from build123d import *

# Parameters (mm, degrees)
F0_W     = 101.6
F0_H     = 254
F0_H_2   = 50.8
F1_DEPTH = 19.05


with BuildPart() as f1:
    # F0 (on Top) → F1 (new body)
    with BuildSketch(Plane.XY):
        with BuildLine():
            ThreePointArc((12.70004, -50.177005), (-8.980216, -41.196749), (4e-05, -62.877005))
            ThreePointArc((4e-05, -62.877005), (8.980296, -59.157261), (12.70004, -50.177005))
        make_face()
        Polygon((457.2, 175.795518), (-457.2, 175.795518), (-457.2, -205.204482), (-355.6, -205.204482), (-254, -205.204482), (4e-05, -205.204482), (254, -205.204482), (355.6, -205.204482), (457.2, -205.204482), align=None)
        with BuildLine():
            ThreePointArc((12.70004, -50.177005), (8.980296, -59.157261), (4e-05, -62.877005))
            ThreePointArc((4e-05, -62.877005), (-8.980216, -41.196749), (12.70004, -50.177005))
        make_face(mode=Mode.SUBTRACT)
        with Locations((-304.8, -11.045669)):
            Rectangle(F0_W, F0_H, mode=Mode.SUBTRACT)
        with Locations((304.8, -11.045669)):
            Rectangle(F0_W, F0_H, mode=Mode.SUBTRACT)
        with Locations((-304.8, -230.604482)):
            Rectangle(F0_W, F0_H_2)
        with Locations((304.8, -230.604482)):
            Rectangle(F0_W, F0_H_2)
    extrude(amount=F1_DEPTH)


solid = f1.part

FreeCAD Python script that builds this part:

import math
import FreeCAD as App
import Part
import Sketcher
Q = App.Units.Quantity

doc = App.newDocument("Part")
params = doc.addObject("Spreadsheet::Sheet", "Params")
for row, (alias, value) in enumerate([
    ("sketch1_radius", "0.5 in"),
    ("sketch1_width", "36 in"),
    ("sketch1_width2", "4 in"),
    ("sketch1_height", "15 in"),
    ("sketch1_height2", "2 in"),
    ("pad1_length", "0.75 in"),
], start=1):
    params.set(f"A{row}", alias)
    params.set(f"B{row}", "=" + value)
    params.setAlias(f"B{row}", alias)

body = doc.addObject("PartDesign::Body", "Body")

# Sketch on XY plane
sketch1 = body.newObject("Sketcher::SketchObject", "Sketch")
sketch1.AttachmentSupport = (doc.getObject("XY_Plane"), [""])
sketch1.MapMode = "FlatFace"
sketch1.addGeometry([
    Part.LineSegment(App.Vector(457, 176, 0), App.Vector(-457, 176, 0)),  # 0
    Part.LineSegment(App.Vector(-457, 176, 0), App.Vector(-457, -205, 0)),  # 1
    Part.LineSegment(App.Vector(-457, -205, 0), App.Vector(-356, -205, 0)),  # 2
    Part.LineSegment(App.Vector(-356, -205, 0), App.Vector(-356, -256, 0)),  # 3
    Part.LineSegment(App.Vector(-356, -256, 0), App.Vector(-254, -256, 0)),  # 4
    Part.LineSegment(App.Vector(-254, -256, 0), App.Vector(-254, -205, 0)),  # 5
    Part.LineSegment(App.Vector(-254, -205, 0), App.Vector(254, -205, 0)),  # 6
    Part.LineSegment(App.Vector(254, -205, 0), App.Vector(254, -256, 0)),  # 7
    Part.LineSegment(App.Vector(254, -256, 0), App.Vector(356, -256, 0)),  # 8
    Part.LineSegment(App.Vector(356, -256, 0), App.Vector(356, -205, 0)),  # 9
    Part.LineSegment(App.Vector(356, -205, 0), App.Vector(457, -205, 0)),  # 10
    Part.LineSegment(App.Vector(457, -205, 0), App.Vector(457, 176, 0)),  # 11
    Part.ArcOfCircle(Part.Circle(App.Vector(0, -50, 0), App.Vector(0, 0, 1), 13), math.radians(0), math.radians(270)),  # 12
    Part.ArcOfCircle(Part.Circle(App.Vector(0, -50, 0), App.Vector(0, 0, 1), 13), math.radians(-90), math.radians(0)),  # 13
    Part.LineSegment(App.Vector(-254, -138, 0), App.Vector(-356, -138, 0)),  # 14
    Part.LineSegment(App.Vector(-356, -138, 0), App.Vector(-356, 116, 0)),  # 15
    Part.LineSegment(App.Vector(-356, 116, 0), App.Vector(-254, 116, 0)),  # 16
    Part.LineSegment(App.Vector(-254, 116, 0), App.Vector(-254, -138, 0)),  # 17
    Part.LineSegment(App.Vector(356, -138, 0), App.Vector(254, -138, 0)),  # 18
    Part.LineSegment(App.Vector(254, -138, 0), App.Vector(254, 116, 0)),  # 19
    Part.LineSegment(App.Vector(254, 116, 0), App.Vector(356, 116, 0)),  # 20
    Part.LineSegment(App.Vector(356, 116, 0), App.Vector(356, -138, 0)),  # 21
], False)
sketch1.addConstraint([
    Sketcher.Constraint("Coincident", 0, 2, 1, 1),
    Sketcher.Constraint("Coincident", 1, 2, 2, 1),
    Sketcher.Constraint("Coincident", 2, 2, 3, 1),
    Sketcher.Constraint("Coincident", 3, 2, 4, 1),
    Sketcher.Constraint("Coincident", 4, 2, 5, 1),
    Sketcher.Constraint("Coincident", 5, 2, 6, 1),
    Sketcher.Constraint("Coincident", 6, 2, 7, 1),
    Sketcher.Constraint("Coincident", 7, 2, 8, 1),
    Sketcher.Constraint("Coincident", 8, 2, 9, 1),
    Sketcher.Constraint("Coincident", 9, 2, 10, 1),
    Sketcher.Constraint("Coincident", 10, 2, 11, 1),
    Sketcher.Constraint("Coincident", 11, 2, 0, 1),
    Sketcher.Constraint("Tangent", 12, 1, 13, 2),
    Sketcher.Constraint("Coincident", 13, 1, 12, 2),
    Sketcher.Constraint("Coincident", 14, 2, 15, 1),
    Sketcher.Constraint("Coincident", 15, 2, 16, 1),
    Sketcher.Constraint("Coincident", 16, 2, 17, 1),
    Sketcher.Constraint("Coincident", 17, 2, 14, 1),
    Sketcher.Constraint("Coincident", 18, 2, 19, 1),
    Sketcher.Constraint("Coincident", 19, 2, 20, 1),
    Sketcher.Constraint("Coincident", 20, 2, 21, 1),
    Sketcher.Constraint("Coincident", 21, 2, 18, 1),
    Sketcher.Constraint("Horizontal", 0),
    Sketcher.Constraint("Vertical", 1),
    Sketcher.Constraint("Horizontal", 2),
    Sketcher.Constraint("Vertical", 3),
    Sketcher.Constraint("Horizontal", 4),
    Sketcher.Constraint("Vertical", 5),
    Sketcher.Constraint("Horizontal", 6),
    Sketcher.Constraint("Vertical", 7),
    Sketcher.Constraint("Horizontal", 8),
    Sketcher.Constraint("Vertical", 9),
    Sketcher.Constraint("Horizontal", 10),
    Sketcher.Constraint("Vertical", 11),
    Sketcher.Constraint("Horizontal", 14),
    Sketcher.Constraint("Vertical", 15),
    Sketcher.Constraint("Horizontal", 16),
    Sketcher.Constraint("Vertical", 17),
    Sketcher.Constraint("Horizontal", 18),
    Sketcher.Constraint("Vertical", 19),
    Sketcher.Constraint("Horizontal", 20),
    Sketcher.Constraint("Vertical", 21),
    Sketcher.Constraint("Symmetric", 4, 2, 7, 2, -2),
    Sketcher.Constraint("Symmetric", 2, 2, 9, 2, -2),
    Sketcher.Constraint("Symmetric", 17, 2, 18, 2, -2),
    Sketcher.Constraint("Symmetric", 15, 2, 20, 2, -2),
    Sketcher.Constraint("Horizontal", 2, 2, 5, 2),
    Sketcher.Constraint("Horizontal", 13, 3, 12, 1),
    Sketcher.Constraint("Vertical", 12, 3, 13, 1),
    Sketcher.Constraint("Vertical", 3, 2, 14, 2),
    Sketcher.Constraint("Vertical", 5, 2, 16, 2),
    Sketcher.Constraint("Equal", 2, 4),
    Sketcher.Constraint("Equal", 8, 10),
    Sketcher.Constraint("Radius", 12, Q("0.5 in")),
    Sketcher.Constraint("DistanceX", 0, 2, 0, 1, Q("36 in")),
    Sketcher.Constraint("DistanceX", 2, 1, 2, 2, Q("4 in")),
    Sketcher.Constraint("DistanceY", 1, 2, 1, 1, Q("15 in")),
    Sketcher.Constraint("DistanceY", 3, 2, 3, 1, Q("2 in")),
    Sketcher.Constraint("DistanceY", 15, 1, 15, 2, Q("10 in")),
    Sketcher.Constraint("DistanceY", 3, 2, -1, 1, 256.004482),
    Sketcher.Constraint("DistanceX", -1, 1, 12, 1, 12.70004),
    Sketcher.Constraint("DistanceY", 14, 2, -1, 1, 138.045669),
    Sketcher.Constraint("DistanceY", 12, 3, -1, 1, 50.177005),
])
sketch1.setExpression("Constraints[53]", "Params.sketch1_radius")
sketch1.setExpression("Constraints[54]", "Params.sketch1_width")
sketch1.setExpression("Constraints[55]", "Params.sketch1_width2")
sketch1.setExpression("Constraints[56]", "Params.sketch1_height")
sketch1.setExpression("Constraints[57]", "Params.sketch1_height2")
pad1 = body.newObject("PartDesign::Pad", "Pad")
pad1.Profile = sketch1
pad1.setExpression("Length", "Params.pad1_length")

doc.recompute()
